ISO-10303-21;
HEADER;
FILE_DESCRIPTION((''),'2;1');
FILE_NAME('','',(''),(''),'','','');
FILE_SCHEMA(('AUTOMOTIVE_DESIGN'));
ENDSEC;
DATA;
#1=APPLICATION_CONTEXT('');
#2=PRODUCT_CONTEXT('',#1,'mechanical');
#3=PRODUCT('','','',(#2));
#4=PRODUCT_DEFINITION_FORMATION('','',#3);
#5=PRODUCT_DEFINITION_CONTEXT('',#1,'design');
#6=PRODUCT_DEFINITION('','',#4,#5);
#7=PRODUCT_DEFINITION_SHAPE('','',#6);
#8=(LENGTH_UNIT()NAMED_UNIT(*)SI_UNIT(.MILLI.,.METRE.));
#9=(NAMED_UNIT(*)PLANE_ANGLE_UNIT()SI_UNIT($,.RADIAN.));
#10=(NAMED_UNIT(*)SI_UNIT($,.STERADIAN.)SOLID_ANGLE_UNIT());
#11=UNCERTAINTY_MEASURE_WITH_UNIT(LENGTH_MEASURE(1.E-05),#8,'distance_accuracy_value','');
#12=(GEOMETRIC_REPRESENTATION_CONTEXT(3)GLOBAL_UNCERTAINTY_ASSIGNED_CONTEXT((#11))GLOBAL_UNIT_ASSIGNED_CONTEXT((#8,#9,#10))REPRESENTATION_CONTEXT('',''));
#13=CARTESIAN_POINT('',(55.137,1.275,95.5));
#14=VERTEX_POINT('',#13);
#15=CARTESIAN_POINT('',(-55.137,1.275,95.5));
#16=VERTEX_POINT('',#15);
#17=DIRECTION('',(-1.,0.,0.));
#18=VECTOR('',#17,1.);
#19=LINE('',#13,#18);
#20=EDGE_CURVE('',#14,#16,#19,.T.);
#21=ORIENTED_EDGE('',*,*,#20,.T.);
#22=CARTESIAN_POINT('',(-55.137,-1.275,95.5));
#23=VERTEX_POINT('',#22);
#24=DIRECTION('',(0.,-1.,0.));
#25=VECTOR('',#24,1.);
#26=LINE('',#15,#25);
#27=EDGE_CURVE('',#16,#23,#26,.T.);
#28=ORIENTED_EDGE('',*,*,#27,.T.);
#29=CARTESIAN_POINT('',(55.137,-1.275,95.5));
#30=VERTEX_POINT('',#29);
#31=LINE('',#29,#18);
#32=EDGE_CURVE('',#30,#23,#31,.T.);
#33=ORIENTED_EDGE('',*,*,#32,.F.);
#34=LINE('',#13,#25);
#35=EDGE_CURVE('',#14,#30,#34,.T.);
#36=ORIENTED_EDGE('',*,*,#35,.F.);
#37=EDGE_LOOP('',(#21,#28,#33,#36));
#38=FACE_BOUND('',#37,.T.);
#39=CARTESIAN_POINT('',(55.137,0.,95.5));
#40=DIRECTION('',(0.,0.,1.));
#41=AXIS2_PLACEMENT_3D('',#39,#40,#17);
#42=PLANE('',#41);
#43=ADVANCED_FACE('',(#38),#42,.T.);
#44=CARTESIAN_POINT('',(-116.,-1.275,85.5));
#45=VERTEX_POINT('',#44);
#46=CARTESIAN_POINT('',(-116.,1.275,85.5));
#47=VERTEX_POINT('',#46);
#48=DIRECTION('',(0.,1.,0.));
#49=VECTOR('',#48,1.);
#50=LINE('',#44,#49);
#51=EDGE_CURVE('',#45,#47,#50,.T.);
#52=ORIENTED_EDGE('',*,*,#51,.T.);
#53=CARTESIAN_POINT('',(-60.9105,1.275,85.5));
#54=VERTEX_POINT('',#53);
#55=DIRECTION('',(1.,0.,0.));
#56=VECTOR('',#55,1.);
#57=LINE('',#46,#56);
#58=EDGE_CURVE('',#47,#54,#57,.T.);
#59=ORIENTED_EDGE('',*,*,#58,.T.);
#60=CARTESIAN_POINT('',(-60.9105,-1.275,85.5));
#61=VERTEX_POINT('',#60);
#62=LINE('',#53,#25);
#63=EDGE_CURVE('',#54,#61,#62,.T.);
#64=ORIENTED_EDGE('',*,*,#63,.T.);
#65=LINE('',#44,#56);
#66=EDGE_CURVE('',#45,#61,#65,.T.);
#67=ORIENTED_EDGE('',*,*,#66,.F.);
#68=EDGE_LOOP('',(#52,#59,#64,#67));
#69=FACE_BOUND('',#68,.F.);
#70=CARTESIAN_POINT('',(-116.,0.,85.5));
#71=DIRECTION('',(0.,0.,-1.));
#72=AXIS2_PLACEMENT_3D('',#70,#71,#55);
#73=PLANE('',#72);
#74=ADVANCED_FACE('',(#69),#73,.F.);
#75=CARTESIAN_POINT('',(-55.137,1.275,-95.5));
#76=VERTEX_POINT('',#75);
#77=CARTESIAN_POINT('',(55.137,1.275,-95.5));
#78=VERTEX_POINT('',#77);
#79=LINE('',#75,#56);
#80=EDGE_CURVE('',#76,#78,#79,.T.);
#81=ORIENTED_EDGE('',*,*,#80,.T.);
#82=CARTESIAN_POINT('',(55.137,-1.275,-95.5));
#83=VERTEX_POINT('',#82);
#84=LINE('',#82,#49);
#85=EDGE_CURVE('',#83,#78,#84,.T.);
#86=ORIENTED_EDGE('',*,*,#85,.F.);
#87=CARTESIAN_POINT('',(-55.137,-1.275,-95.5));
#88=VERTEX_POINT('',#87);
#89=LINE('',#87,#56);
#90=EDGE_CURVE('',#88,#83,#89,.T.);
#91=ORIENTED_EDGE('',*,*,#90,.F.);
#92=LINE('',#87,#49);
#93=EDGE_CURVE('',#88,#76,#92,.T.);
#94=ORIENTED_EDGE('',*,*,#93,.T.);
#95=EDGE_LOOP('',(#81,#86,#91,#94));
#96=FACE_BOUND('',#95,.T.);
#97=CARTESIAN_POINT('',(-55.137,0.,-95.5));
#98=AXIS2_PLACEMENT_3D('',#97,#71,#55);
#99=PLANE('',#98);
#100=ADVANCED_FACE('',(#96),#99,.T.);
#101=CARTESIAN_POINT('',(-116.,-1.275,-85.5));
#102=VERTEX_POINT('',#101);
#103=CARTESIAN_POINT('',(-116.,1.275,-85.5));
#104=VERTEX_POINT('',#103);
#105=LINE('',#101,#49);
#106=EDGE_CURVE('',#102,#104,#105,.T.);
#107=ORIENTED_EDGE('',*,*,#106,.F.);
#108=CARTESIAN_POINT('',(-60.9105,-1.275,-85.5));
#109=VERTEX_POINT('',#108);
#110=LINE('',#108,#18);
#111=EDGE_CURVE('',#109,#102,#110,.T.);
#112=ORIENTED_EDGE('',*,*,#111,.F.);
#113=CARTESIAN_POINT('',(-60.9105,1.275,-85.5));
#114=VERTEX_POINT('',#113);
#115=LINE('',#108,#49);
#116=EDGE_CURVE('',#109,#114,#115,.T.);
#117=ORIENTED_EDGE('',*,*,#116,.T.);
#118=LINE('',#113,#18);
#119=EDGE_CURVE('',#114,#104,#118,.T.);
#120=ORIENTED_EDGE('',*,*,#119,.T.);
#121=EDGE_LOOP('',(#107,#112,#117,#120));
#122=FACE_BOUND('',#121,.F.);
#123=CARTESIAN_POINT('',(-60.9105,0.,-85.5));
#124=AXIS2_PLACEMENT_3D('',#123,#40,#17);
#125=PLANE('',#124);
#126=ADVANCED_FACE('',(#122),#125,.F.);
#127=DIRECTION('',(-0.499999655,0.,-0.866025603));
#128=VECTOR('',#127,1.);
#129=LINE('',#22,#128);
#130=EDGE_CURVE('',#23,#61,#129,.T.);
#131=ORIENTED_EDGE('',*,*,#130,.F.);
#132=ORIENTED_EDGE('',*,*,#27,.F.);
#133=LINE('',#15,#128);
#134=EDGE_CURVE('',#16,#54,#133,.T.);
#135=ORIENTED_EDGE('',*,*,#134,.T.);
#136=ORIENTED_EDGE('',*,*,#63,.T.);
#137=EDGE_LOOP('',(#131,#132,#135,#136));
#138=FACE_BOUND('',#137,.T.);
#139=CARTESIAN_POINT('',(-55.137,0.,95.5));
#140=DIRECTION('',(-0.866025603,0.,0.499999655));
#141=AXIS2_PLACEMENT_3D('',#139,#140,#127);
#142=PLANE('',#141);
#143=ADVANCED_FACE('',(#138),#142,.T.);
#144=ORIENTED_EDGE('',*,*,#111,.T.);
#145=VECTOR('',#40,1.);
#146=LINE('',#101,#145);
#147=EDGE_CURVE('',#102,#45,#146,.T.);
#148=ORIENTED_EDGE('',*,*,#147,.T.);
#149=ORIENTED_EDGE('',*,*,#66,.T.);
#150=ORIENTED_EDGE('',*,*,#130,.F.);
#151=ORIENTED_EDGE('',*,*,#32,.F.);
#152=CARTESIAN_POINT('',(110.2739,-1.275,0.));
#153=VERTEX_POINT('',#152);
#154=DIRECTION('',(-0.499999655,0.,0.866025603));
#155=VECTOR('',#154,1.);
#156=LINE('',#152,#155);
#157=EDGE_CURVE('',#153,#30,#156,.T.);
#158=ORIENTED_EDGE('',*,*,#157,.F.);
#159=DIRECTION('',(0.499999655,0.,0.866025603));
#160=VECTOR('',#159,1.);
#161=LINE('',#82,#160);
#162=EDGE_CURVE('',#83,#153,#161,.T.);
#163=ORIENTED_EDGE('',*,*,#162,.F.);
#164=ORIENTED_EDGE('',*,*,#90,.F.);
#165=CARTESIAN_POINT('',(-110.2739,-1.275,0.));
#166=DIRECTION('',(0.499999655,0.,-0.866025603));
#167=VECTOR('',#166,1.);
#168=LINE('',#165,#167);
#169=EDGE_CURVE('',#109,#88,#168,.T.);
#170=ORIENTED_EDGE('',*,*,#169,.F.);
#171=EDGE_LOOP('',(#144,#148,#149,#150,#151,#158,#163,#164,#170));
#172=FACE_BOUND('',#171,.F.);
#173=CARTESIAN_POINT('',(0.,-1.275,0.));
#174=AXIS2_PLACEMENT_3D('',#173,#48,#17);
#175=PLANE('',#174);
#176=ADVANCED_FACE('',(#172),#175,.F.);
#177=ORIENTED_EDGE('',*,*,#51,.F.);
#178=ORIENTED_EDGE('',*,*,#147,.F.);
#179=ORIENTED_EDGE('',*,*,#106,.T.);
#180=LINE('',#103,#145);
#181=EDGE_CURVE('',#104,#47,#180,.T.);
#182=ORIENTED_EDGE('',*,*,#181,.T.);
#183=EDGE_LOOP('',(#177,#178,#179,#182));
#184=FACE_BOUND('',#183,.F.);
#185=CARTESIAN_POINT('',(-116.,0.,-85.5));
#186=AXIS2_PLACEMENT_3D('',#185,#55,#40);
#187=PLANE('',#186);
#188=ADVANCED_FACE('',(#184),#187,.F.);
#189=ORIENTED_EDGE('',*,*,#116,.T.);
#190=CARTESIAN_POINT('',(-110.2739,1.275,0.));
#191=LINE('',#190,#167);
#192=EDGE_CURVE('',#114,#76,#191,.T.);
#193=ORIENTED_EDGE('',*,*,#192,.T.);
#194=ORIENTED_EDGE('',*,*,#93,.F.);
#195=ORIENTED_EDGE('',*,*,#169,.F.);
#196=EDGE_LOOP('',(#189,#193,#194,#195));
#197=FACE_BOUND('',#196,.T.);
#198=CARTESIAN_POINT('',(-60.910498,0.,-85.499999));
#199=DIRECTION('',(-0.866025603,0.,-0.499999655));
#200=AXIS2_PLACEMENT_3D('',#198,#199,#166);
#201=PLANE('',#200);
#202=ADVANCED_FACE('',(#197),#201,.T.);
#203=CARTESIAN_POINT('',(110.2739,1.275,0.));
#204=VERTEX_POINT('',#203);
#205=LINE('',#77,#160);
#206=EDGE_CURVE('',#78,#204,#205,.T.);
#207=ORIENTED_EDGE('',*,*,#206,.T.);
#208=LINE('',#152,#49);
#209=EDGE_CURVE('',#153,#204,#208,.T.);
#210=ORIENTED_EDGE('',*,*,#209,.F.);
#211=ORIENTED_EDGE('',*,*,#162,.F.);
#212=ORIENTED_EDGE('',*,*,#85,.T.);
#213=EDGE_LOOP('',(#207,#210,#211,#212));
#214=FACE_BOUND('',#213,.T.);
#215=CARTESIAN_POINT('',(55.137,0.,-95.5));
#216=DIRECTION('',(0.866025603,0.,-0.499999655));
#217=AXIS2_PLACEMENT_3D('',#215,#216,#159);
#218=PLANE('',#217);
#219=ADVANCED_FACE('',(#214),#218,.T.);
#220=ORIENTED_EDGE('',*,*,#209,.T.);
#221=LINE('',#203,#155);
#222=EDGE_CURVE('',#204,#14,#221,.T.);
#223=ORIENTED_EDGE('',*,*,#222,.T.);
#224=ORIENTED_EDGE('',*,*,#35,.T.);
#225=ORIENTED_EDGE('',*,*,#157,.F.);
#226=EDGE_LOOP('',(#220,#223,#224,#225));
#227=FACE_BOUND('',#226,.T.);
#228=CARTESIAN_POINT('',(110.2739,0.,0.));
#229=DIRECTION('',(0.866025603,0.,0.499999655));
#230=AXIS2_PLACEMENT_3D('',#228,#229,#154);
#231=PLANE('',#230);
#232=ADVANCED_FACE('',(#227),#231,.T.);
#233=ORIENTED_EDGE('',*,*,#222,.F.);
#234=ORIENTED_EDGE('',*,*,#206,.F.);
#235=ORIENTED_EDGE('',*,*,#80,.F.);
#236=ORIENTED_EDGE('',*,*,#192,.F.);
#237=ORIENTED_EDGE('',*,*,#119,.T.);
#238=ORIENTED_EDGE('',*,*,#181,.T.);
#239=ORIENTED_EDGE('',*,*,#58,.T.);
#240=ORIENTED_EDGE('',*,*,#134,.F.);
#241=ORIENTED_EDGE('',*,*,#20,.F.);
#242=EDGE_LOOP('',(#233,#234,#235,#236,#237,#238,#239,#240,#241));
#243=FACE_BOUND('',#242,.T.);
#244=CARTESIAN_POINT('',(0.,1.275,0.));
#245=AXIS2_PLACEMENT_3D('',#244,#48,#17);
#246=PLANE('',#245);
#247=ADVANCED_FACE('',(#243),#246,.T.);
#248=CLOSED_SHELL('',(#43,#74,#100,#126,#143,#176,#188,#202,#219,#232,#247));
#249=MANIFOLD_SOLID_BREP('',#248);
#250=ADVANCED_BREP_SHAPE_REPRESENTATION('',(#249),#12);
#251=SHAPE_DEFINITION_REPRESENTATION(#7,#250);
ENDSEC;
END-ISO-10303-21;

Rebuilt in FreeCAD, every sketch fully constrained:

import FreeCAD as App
import Part
import Sketcher
from FreeCAD import Vector
Q = App.Units.Quantity


def add_polygon(sketch, points):
    """Adds a closed chain of lines whose ends are joined by coincident constraints."""
    first, n = sketch.GeometryCount, len(points)
    for a, b in zip(points, points[1:] + points[:1]):
        sketch.addGeometry(Part.LineSegment(App.Vector(*a, 0), App.Vector(*b, 0)), False)
    for i in range(n):
        sketch.addConstraint(Sketcher.Constraint("Coincident", first + i, 2, first + (i + 1) % n, 1))

doc = App.newDocument("Part")
body = doc.addObject("PartDesign::Body", "Body")

# Sketch on XZ plane
sketch1 = doc.addObject("Sketcher::SketchObject", "Sketch")
body.addObject(sketch1)
sketch1.AttachmentSupport = (doc.XZ_Plane, [""])
sketch1.MapMode = "FlatFace"
add_polygon(sketch1, [(55.137, 95.5), (110.2739, 0), (55.137, -95.5), (-55.137, -95.5), (-60.9105, -85.5), (-116, -85.5), (-116, 85.5), (-60.910498, 85.499999), (-55.137, 95.5)])  # lines 0-8
sketch1.addConstraint([
    Sketcher.Constraint("Horizontal", 2),
    Sketcher.Constraint("Horizontal", 4),
    Sketcher.Constraint("Vertical", 5),
    Sketcher.Constraint("Horizontal", 6),
    Sketcher.Constraint("Horizontal", 8),
    Sketcher.Constraint("Symmetric", 1, 2, 7, 2, -1, 1),
    Sketcher.Constraint("Symmetric", 3, 2, 6, 2, -1),
    Sketcher.Constraint("PointOnObject", 0, 2, -1),
    Sketcher.Constraint("Parallel", 0, 3),
    Sketcher.Constraint("Parallel", 1, 7),
    Sketcher.Constraint("Vertical", 2, 2, 7, 2),
    Sketcher.Constraint("DistanceY", 5, 1, 5, 2, Q("171 mm")),
    Sketcher.Constraint("DistanceX", 4, 2, -1, 1, Q("116 mm")),
    Sketcher.Constraint("DistanceY", 2, 2, 7, 2, Q("191 mm")),
    Sketcher.Constraint("Angle", 0, Q("-60 deg")),
    Sketcher.Constraint("DistanceX", 2, 2, 2, 1, Q("110.274 mm")),
])
pad1 = doc.addObject("PartDesign::Pad", "Pad")
body.addObject(pad1)
pad1.Profile = sketch1
pad1.Length = 2.55
pad1.Midplane = True

doc.recompute()
